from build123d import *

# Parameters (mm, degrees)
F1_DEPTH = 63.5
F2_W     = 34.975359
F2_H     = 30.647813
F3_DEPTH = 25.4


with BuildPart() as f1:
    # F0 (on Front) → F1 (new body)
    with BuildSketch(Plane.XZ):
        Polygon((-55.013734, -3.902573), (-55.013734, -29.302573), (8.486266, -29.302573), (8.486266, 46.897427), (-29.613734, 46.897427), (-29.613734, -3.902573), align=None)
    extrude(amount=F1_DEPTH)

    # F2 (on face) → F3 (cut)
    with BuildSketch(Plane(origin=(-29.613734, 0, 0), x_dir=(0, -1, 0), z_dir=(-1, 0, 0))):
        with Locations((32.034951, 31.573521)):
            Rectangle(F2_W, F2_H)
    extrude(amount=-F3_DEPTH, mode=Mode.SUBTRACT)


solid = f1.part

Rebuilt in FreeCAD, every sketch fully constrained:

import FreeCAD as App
import Part
import Sketcher
from FreeCAD import Vector
Q = App.Units.Quantity


def add_polygon(sketch, points):
    """Adds a closed chain of lines whose ends are joined by coincident constraints."""
    first, n = sketch.GeometryCount, len(points)
    for a, b in zip(points, points[1:] + points[:1]):
        sketch.addGeometry(Part.LineSegment(App.Vector(*a, 0), App.Vector(*b, 0)), False)
    for i in range(n):
        sketch.addConstraint(Sketcher.Constraint("Coincident", first + i, 2, first + (i + 1) % n, 1))

doc = App.newDocument("Part")
params = doc.addObject("Spreadsheet::Sheet", "Params")
for row, (alias, value) in enumerate([
    ("sketch1_width", "1 in"),
    ("sketch1_height", "3 in"),
    ("sketch1_width2", "2.5 in"),
    ("pad1_length", "2.5 in"),
    ("pocket1_length", "1 in"),
], start=1):
    params.set(f"A{row}", alias)
    params.set(f"B{row}", "=" + value)
    params.setAlias(f"B{row}", alias)

body = doc.addObject("PartDesign::Body", "Body")

# Sketch on XZ plane
sketch1 = body.newObject("Sketcher::SketchObject", "Sketch")
sketch1.AttachmentSupport = (doc.getObject("XZ_Plane"), [""])
sketch1.MapMode = "FlatFace"
add_polygon(sketch1, [(-55, -4), (-55, -29), (8, -29), (8, 47), (-30, 47), (-30, -4)])  # lines 0-5
sketch1.addConstraint([
    Sketcher.Constraint("Vertical", 0),
    Sketcher.Constraint("Horizontal", 1),
    Sketcher.Constraint("Vertical", 2),
    Sketcher.Constraint("Horizontal", 3),
    Sketcher.Constraint("Vertical", 4),
    Sketcher.Constraint("Horizontal", 5),
    Sketcher.Constraint("Equal", 5, 0),
    Sketcher.Constraint("DistanceX", 5, 2, 5, 1, Q("1 in")),
    Sketcher.Constraint("DistanceY", 2, 1, 2, 2, Q("3 in")),
    Sketcher.Constraint("DistanceX", 1, 1, 1, 2, Q("2.5 in")),
    Sketcher.Constraint("DistanceX", 0, 2, -1, 1, 55.013734),
    Sketcher.Constraint("DistanceY", 0, 2, -1, 1, 29.302573),
])
sketch1.setExpression("Constraints[13]", "Params.sketch1_width")
sketch1.setExpression("Constraints[14]", "Params.sketch1_height")
sketch1.setExpression("Constraints[15]", "Params.sketch1_width2")
pad1 = body.newObject("PartDesign::Pad", "Pad")
pad1.Profile = sketch1
pad1.setExpression("Length", "Params.pad1_length")

# Sketch on YZ plane
sketch2 = body.newObject("Sketcher::SketchObject", "Sketch001")
sketch2.AttachmentSupport = (doc.getObject("YZ_Plane"), [""])
sketch2.MapMode = "FlatFace"
sketch2.AttachmentOffset = App.Placement(Vector(0, 0, -29.613734), App.Rotation())
add_polygon(sketch2, [(-15, 47), (-15, 16), (-50, 16), (-50, 47)])  # lines 0-3
sketch2.addConstraint([
    Sketcher.Constraint("Vertical", 0),
    Sketcher.Constraint("Horizontal", 1),
    Sketcher.Constraint("Vertical", 2),
    Sketcher.Constraint("Horizontal", 3),
    Sketcher.Constraint("DistanceX", 1, 2, 1, 1, 34.975359),
    Sketcher.Constraint("DistanceY", 0, 2, 0, 1, 30.647813),
    Sketcher.Constraint("DistanceX", 0, 2, -1, 1, 14.547272),
    Sketcher.Constraint("DistanceY", -1, 1, 0, 2, 16.249614),
])
pocket1 = body.newObject("PartDesign::Pocket", "Pocket")
pocket1.Profile = sketch2
pocket1.setExpression("Length", "Params.pocket1_length")
pocket1.Reversed = True

doc.recompute()
